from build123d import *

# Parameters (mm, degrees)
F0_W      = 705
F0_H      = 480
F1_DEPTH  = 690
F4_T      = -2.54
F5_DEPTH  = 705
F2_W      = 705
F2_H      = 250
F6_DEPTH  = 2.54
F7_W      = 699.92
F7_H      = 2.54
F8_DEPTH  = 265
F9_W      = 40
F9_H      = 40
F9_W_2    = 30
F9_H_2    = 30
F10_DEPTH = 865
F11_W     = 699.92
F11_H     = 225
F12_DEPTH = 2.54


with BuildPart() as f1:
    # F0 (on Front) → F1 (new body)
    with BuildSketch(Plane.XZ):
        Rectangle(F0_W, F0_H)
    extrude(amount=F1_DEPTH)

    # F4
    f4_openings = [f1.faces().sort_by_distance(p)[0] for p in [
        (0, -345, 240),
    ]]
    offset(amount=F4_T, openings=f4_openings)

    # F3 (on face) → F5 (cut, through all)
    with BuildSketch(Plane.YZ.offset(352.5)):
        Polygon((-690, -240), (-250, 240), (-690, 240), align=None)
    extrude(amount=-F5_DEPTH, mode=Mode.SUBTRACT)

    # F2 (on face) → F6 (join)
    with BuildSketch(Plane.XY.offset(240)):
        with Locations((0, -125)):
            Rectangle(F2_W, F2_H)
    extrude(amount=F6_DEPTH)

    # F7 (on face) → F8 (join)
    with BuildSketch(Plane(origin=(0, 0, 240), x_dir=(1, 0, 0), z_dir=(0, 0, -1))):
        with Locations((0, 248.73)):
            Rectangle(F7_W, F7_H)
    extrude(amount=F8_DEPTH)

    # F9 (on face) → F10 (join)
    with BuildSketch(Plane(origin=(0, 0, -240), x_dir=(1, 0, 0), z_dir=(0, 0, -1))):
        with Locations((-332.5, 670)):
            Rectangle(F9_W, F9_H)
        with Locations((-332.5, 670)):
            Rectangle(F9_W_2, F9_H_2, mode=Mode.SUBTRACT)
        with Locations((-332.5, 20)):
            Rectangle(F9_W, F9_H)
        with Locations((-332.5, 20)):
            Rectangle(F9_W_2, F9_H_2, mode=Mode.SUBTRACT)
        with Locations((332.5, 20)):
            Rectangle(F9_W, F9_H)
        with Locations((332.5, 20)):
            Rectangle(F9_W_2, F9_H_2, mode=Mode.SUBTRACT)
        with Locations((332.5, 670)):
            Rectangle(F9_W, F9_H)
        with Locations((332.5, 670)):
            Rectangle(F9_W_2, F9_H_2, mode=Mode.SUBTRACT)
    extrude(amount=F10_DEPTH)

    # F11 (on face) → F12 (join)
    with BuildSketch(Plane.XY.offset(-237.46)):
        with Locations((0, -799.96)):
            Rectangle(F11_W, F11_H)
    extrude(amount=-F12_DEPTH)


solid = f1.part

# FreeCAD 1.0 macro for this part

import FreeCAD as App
import Part
import Sketcher

V = App.Vector
Q = App.Units.Quantity


def faces_at(feature, points):
    """Names of the faces that lie closest to the given points."""
    faces = feature.Shape.Faces
    near = lambda p: min(range(len(faces)), key=lambda i: faces[i].distToShape(Part.Vertex(*p))[0])
    return sorted({f"Face{near(p) + 1}" for p in points})


def add_polygon(sketch, points):
    """Adds a closed chain of lines whose ends are joined by coincident constraints."""
    first, n = sketch.GeometryCount, len(points)
    for a, b in zip(points, points[1:] + points[:1]):
        sketch.addGeometry(Part.LineSegment(App.Vector(*a, 0), App.Vector(*b, 0)), False)
    for i in range(n):
        sketch.addConstraint(Sketcher.Constraint("Coincident", first + i, 2, first + (i + 1) % n, 1))

doc = App.newDocument("Part")
body = doc.addObject("PartDesign::Body", "Body")

# Sketch on XZ plane
sketch1 = doc.addObject("Sketcher::SketchObject", "Sketch")
body.addObject(sketch1)
sketch1.AttachmentSupport = (doc.XZ_Plane, [""])
sketch1.MapMode = "FlatFace"
add_polygon(sketch1, [(-352, 240), (-352, -240), (352, -240), (352, 240)])  # lines 0-3
sketch1.addConstraint(Sketcher.Constraint("Vertical", 0))
sketch1.addConstraint(Sketcher.Constraint("Horizontal", 1))
sketch1.addConstraint(Sketcher.Constraint("Vertical", 2))
sketch1.addConstraint(Sketcher.Constraint("Horizontal", 3))
sketch1.addConstraint(Sketcher.Constraint("Symmetric", 0, 2, 2, 2, -1, 1))
sketch1.addConstraint(Sketcher.Constraint("DistanceX", 1, 1, 1, 2, Q("705 mm")))
sketch1.addConstraint(Sketcher.Constraint("DistanceY", 0, 2, 0, 1, Q("480 mm")))
pad1 = doc.addObject("PartDesign::Pad", "Pad")
body.addObject(pad1)
pad1.Profile = sketch1
pad1.Length = 690
doc.recompute()

thickness = doc.addObject("PartDesign::Thickness", "Thickness")
body.addObject(thickness)
thickness.Base = (pad1, faces_at(pad1, [(0, -345, 240)]))
thickness.Value = 2.54
thickness.Reversed = True
thickness.Join = "Arc"

# Sketch on YZ plane
sketch2 = doc.addObject("Sketcher::SketchObject", "Sketch001")
body.addObject(sketch2)
sketch2.AttachmentSupport = (doc.YZ_Plane, [""])
sketch2.MapMode = "FlatFace"
sketch2.AttachmentOffset = App.Placement(V(0, 0, 352.5), App.Rotation())
add_polygon(sketch2, [(-690, -240), (-250, 240), (-690, 240)])  # lines 0-2
sketch2.addConstraint(Sketcher.Constraint("Horizontal", 1))
sketch2.addConstraint(Sketcher.Constraint("Vertical", 2))
sketch2.addConstraint(Sketcher.Constraint("DistanceX", 1, 2, 1, 1, Q("440 mm")))
sketch2.addConstraint(Sketcher.Constraint("DistanceY", 2, 2, 2, 1, Q("480 mm")))
sketch2.addConstraint(Sketcher.Constraint("DistanceX", 0, 2, -1, 1, Q("250 mm")))
sketch2.addConstraint(Sketcher.Constraint("DistanceY", -1, 1, 0, 2, Q("240 mm")))
pocket1 = doc.addObject("PartDesign::Pocket", "Pocket")
body.addObject(pocket1)
pocket1.Profile = sketch2
pocket1.Type = "ThroughAll"

# Sketch on XY plane
sketch3 = doc.addObject("Sketcher::SketchObject", "Sketch002")
body.addObject(sketch3)
sketch3.AttachmentSupport = (doc.XY_Plane, [""])
sketch3.MapMode = "FlatFace"
sketch3.AttachmentOffset = App.Placement(V(0, 0, 240), App.Rotation())
add_polygon(sketch3, [(-352, 0), (-352, -250), (352, -250), (352, 0)])  # lines 0-3
sketch3.addConstraint(Sketcher.Constraint("Vertical", 0))
sketch3.addConstraint(Sketcher.Constraint("Horizontal", 1))
sketch3.addConstraint(Sketcher.Constraint("Vertical", 2))
sketch3.addConstraint(Sketcher.Constraint("Horizontal", 3))
sketch3.addConstraint(Sketcher.Constraint("Symmetric", 2, 2, 3, 2, -1, 1))
sketch3.addConstraint(Sketcher.Constraint("DistanceX", 1, 1, 1, 2, Q("705 mm")))
sketch3.addConstraint(Sketcher.Constraint("DistanceY", 0, 2, 0, 1, Q("250 mm")))
pad2 = doc.addObject("PartDesign::Pad", "Pad001")
body.addObject(pad2)
pad2.Profile = sketch3
pad2.Length = 2.54

# Sketch on XY plane
sketch4 = doc.addObject("Sketcher::SketchObject", "Sketch003")
body.addObject(sketch4)
sketch4.AttachmentSupport = (doc.XY_Plane, [""])
sketch4.MapMode = "FlatFace"
sketch4.AttachmentOffset = App.Placement(V(0, 0, 240), App.Rotation())
add_polygon(sketch4, [(-350, -250), (-350, -247.5), (350, -247.5), (350, -250)])  # lines 0-3
sketch4.addConstraint(Sketcher.Constraint("Vertical", 0))
sketch4.addConstraint(Sketcher.Constraint("Horizontal", 1))
sketch4.addConstraint(Sketcher.Constraint("Vertical", 2))
sketch4.addConstraint(Sketcher.Constraint("Horizontal", 3))
sketch4.addConstraint(Sketcher.Constraint("DistanceY", 2, 2, -1, 1, Q("250 mm")))
sketch4.addConstraint(Sketcher.Constraint("DistanceX", 1, 1, 1, 2, Q("699.92 mm")))
sketch4.addConstraint(Sketcher.Constraint("DistanceY", 0, 1, 0, 2, Q("2.54 mm")))
sketch4.addConstraint(Sketcher.Constraint("DistanceX", 0, 2, -1, 1, Q("349.96 mm")))
pad3 = doc.addObject("PartDesign::Pad", "Pad002")
body.addObject(pad3)
pad3.Profile = sketch4
pad3.Length = 265
pad3.Reversed = True

# Sketch on XY plane
sketch5 = doc.addObject("Sketcher::SketchObject", "Sketch004")
body.addObject(sketch5)
sketch5.AttachmentSupport = (doc.XY_Plane, [""])
sketch5.MapMode = "FlatFace"
sketch5.AttachmentOffset = App.Placement(V(0, 0, -240), App.Rotation())
add_polygon(sketch5, [(-352, -690), (-352, -650), (-312, -650), (-312, -690)])  # lines 0-3
add_polygon(sketch5, [(-318, -655), (-348, -655), (-348, -685), (-318, -685)])  # lines 4-7
add_polygon(sketch5, [(-352, -40), (-352, 0), (-312, 0), (-312, -40)])  # lines 8-11
add_polygon(sketch5, [(-318, -5), (-348, -5), (-348, -35), (-318, -35)])  # lines 12-15
add_polygon(sketch5, [(312, -40), (312, 0), (352, 0), (352, -40)])  # lines 16-19
add_polygon(sketch5, [(348, -5), (318, -5), (318, -35), (348, -35)])  # lines 20-23
add_polygon(sketch5, [(312, -690), (312, -650), (352, -650), (352, -690)])  # lines 24-27
add_polygon(sketch5, [(348, -655), (318, -655), (318, -685), (348, -685)])  # lines 28-31
sketch5.addConstraint(Sketcher.Constraint("Vertical", 0))
sketch5.addConstraint(Sketcher.Constraint("Horizontal", 1))
sketch5.addConstraint(Sketcher.Constraint("Vertical", 2))
sketch5.addConstraint(Sketcher.Constraint("Horizontal", 3))
sketch5.addConstraint(Sketcher.Constraint("Horizontal", 4))
sketch5.addConstraint(Sketcher.Constraint("Vertical", 5))
sketch5.addConstraint(Sketcher.Constraint("Horizontal", 6))
sketch5.addConstraint(Sketcher.Constraint("Vertical", 7))
sketch5.addConstraint(Sketcher.Constraint("Vertical", 8))
sketch5.addConstraint(Sketcher.Constraint("Horizontal", 9))
sketch5.addConstraint(Sketcher.Constraint("Vertical", 10))
sketch5.addConstraint(Sketcher.Constraint("Horizontal", 11))
sketch5.addConstraint(Sketcher.Constraint("Horizontal", 12))
sketch5.addConstraint(Sketcher.Constraint("Vertical", 13))
sketch5.addConstraint(Sketcher.Constraint("Horizontal", 14))
sketch5.addConstraint(Sketcher.Constraint("Vertical", 15))
sketch5.addConstraint(Sketcher.Constraint("Vertical", 16))
sketch5.addConstraint(Sketcher.Constraint("Horizontal", 17))
sketch5.addConstraint(Sketcher.Constraint("Vertical", 18))
sketch5.addConstraint(Sketcher.Constraint("Horizontal", 19))
sketch5.addConstraint(Sketcher.Constraint("Horizontal", 20))
sketch5.addConstraint(Sketcher.Constraint("Vertical", 21))
sketch5.addConstraint(Sketcher.Constraint("Horizontal", 22))
sketch5.addConstraint(Sketcher.Constraint("Vertical", 23))
sketch5.addConstraint(Sketcher.Constraint("Vertical", 24))
sketch5.addConstraint(Sketcher.Constraint("Horizontal", 25))
sketch5.addConstraint(Sketcher.Constraint("Vertical", 26))
sketch5.addConstraint(Sketcher.Constraint("Horizontal", 27))
sketch5.addConstraint(Sketcher.Constraint("Horizontal", 28))
sketch5.addConstraint(Sketcher.Constraint("Vertical", 29))
sketch5.addConstraint(Sketcher.Constraint("Horizontal", 30))
sketch5.addConstraint(Sketcher.Constraint("Vertical", 31))
sketch5.addConstraint(Sketcher.Constraint("Symmetric", 9, 2, 16, 2, -1, 1))
sketch5.addConstraint(Sketcher.Constraint("Symmetric", 8, 2, 17, 2, -2))
sketch5.addConstraint(Sketcher.Constraint("Symmetric", 15, 2, 20, 2, -2))
sketch5.addConstraint(Sketcher.Constraint("Symmetric", 13, 2, 22, 2, -2))
sketch5.addConstraint(Sketcher.Constraint("Symmetric", 1, 2, 24, 2, -2))
sketch5.addConstraint(Sketcher.Constraint("Symmetric", 3, 2, 26, 2, -2))
sketch5.addConstraint(Sketcher.Constraint("Symmetric", 7, 2, 28, 2, -2))
sketch5.addConstraint(Sketcher.Constraint("Symmetric", 5, 2, 30, 2, -2))
sketch5.addConstraint(Sketcher.Constraint("Horizontal", 11, 2, 18, 2))
sketch5.addConstraint(Sketcher.Constraint("Vertical", 3, 2, 8, 2))
sketch5.addConstraint(Sketcher.Constraint("Vertical", 2, 2, 9, 2))
sketch5.addConstraint(Sketcher.Constraint("Vertical", 5, 2, 12, 2))
sketch5.addConstraint(Sketcher.Constraint("Vertical", 7, 2, 14, 2))
sketch5.addConstraint(Sketcher.Constraint("Equal", 27, 0))
sketch5.addConstraint(Sketcher.Constraint("Equal", 30, 5))
sketch5.addConstraint(Sketcher.Constraint("Equal", 2, 8))
sketch5.addConstraint(Sketcher.Constraint("Equal", 7, 13))
sketch5.addConstraint(Sketcher.Constraint("DistanceX", 1, 1, 1, 2, Q("40 mm")))
sketch5.addConstraint(Sketcher.Constraint("DistanceX", 4, 2, 4, 1, Q("30 mm")))
sketch5.addConstraint(Sketcher.Constraint("DistanceY", 0, 2, -1, 1, Q("650 mm")))
sketch5.addConstraint(Sketcher.Constraint("DistanceY", 4, 2, -1, 1, Q("655 mm")))
sketch5.addConstraint(Sketcher.Constraint("DistanceY", 12, 2, -1, 1, Q("5 mm")))
sketch5.addConstraint(Sketcher.Constraint("DistanceX", 0, 2, 4, 2, Q("5 mm")))
sketch5.addConstraint(Sketcher.Constraint("DistanceX", 9, 2, 16, 2, Q("625 mm")))
pad4 = doc.addObject("PartDesign::Pad", "Pad003")
body.addObject(pad4)
pad4.Profile = sketch5
pad4.Length = 865
pad4.Reversed = True

# Sketch on XY plane
sketch6 = doc.addObject("Sketcher::SketchObject", "Sketch005")
body.addObject(sketch6)
sketch6.AttachmentSupport = (doc.XY_Plane, [""])
sketch6.MapMode = "FlatFace"
sketch6.AttachmentOffset = App.Placement(V(0, 0, -237.46), App.Rotation())
add_polygon(sketch6, [(-350, -687), (-350, -912), (350, -912), (350, -687)])  # lines 0-3
sketch6.addConstraint(Sketcher.Constraint("Vertical", 0))
sketch6.addConstraint(Sketcher.Constraint("Horizontal", 1))
sketch6.addConstraint(Sketcher.Constraint("Vertical", 2))
sketch6.addConstraint(Sketcher.Constraint("Horizontal", 3))
sketch6.addConstraint(Sketcher.Constraint("DistanceY", 0, 2, 0, 1, Q("225 mm")))
sketch6.addConstraint(Sketcher.Constraint("DistanceX", 1, 1, 1, 2, Q("699.92 mm")))
sketch6.addConstraint(Sketcher.Constraint("DistanceX", 0, 2, -1, 1, Q("349.96 mm")))
sketch6.addConstraint(Sketcher.Constraint("DistanceY", 0, 2, -1, 1, Q("912.46 mm")))
pad5 = doc.addObject("PartDesign::Pad", "Pad004")
body.addObject(pad5)
pad5.Profile = sketch6
pad5.Length = 2.54
pad5.Reversed = True

doc.recompute()
